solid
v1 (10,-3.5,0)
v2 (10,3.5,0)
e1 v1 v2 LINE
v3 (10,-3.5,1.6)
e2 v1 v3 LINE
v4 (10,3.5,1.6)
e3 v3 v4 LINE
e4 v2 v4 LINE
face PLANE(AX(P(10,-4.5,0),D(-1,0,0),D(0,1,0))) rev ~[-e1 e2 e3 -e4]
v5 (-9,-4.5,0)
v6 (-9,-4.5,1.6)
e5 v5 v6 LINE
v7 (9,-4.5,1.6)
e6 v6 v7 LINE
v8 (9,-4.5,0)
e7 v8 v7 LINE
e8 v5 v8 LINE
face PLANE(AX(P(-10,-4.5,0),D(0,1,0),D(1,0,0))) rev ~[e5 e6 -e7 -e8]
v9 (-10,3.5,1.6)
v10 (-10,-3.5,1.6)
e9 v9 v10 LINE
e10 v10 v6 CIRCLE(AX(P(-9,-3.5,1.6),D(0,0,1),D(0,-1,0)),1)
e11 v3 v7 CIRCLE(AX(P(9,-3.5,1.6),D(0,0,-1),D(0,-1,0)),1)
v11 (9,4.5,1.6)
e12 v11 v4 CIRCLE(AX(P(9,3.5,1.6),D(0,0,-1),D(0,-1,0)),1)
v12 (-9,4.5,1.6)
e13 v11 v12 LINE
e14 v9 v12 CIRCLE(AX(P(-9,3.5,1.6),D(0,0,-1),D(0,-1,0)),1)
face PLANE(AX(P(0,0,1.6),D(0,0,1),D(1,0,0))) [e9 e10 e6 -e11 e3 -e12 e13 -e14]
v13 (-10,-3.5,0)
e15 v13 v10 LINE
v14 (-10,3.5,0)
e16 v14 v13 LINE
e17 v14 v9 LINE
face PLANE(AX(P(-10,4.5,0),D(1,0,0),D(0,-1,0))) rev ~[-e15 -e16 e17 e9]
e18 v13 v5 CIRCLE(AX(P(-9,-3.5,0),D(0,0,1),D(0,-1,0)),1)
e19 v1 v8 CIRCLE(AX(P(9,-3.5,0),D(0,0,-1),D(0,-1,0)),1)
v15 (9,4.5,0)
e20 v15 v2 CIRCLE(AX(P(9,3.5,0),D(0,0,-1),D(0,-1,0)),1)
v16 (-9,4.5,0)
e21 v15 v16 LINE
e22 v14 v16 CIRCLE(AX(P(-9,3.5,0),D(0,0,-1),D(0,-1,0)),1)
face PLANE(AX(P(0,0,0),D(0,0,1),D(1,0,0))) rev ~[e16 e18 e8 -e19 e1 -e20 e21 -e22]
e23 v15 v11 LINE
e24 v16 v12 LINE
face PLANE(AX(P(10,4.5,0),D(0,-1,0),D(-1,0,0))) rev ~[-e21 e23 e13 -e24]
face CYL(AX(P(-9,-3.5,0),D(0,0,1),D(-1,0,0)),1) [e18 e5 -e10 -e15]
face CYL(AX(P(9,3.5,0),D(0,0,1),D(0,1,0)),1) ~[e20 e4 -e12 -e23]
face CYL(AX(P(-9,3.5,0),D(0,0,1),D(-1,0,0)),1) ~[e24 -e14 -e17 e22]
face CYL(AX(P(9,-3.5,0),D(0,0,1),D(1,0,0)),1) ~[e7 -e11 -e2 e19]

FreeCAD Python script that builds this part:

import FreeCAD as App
import Part
import Sketcher
Q = App.Units.Quantity


def edges_at(feature, points):
    """Names of the edges that pass closest to the given points."""
    edges = feature.Shape.Edges
    near = lambda p: min(range(len(edges)), key=lambda i: edges[i].distToShape(Part.Vertex(*p))[0])
    return sorted({f"Edge{near(p) + 1}" for p in points})

doc = App.newDocument("Part")
body = doc.addObject("PartDesign::Body", "Body")

sketch1 = body.newObject("Sketcher::SketchObject", "Sketch")
sketch1.AttachmentSupport = (doc.getObject("XY_Plane"), [""])
sketch1.MapMode = "FlatFace"
sketch1.addGeometry(Part.LineSegment(App.Vector(-10, 4, 0), App.Vector(-10, -4, 0)), False)
sketch1.addGeometry(Part.LineSegment(App.Vector(-10, -4, 0), App.Vector(10, -4, 0)), False)
sketch1.addGeometry(Part.LineSegment(App.Vector(10, -4, 0), App.Vector(10, 4, 0)), False)
sketch1.addGeometry(Part.LineSegment(App.Vector(10, 4, 0), App.Vector(-10, 4, 0)), False)
sketch1.addConstraint(Sketcher.Constraint("Coincident", 0, 2, 1, 1))
sketch1.addConstraint(Sketcher.Constraint("Coincident", 1, 2, 2, 1))
sketch1.addConstraint(Sketcher.Constraint("Coincident", 2, 2, 3, 1))
sketch1.addConstraint(Sketcher.Constraint("Coincident", 3, 2, 0, 1))
sketch1.addConstraint(Sketcher.Constraint("Vertical", 0))
sketch1.addConstraint(Sketcher.Constraint("Horizontal", 1))
sketch1.addConstraint(Sketcher.Constraint("Vertical", 2))
sketch1.addConstraint(Sketcher.Constraint("Horizontal", 3))
sketch1.addConstraint(Sketcher.Constraint("Symmetric", 0, 2, 2, 2, -1, 1))
sketch1.addConstraint(Sketcher.Constraint("DistanceX", 1, 1, 1, 2, Q("20 mm")))
sketch1.addConstraint(Sketcher.Constraint("DistanceY", 0, 2, 0, 1, Q("9 mm")))
pad1 = body.newObject("PartDesign::Pad", "Pad")
pad1.Profile = sketch1
pad1.Length = 1.6
doc.recompute()

fillet = body.newObject("PartDesign::Fillet", "Fillet")
fillet.Base = (pad1, edges_at(pad1, [
    (10, 4.5, 0.8),
    (-10, 4.5, 0.8),
    (-10, -4.5, 0.8),
    (10, -4.5, 0.8),
]))
fillet.Radius = 1

doc.recompute()
